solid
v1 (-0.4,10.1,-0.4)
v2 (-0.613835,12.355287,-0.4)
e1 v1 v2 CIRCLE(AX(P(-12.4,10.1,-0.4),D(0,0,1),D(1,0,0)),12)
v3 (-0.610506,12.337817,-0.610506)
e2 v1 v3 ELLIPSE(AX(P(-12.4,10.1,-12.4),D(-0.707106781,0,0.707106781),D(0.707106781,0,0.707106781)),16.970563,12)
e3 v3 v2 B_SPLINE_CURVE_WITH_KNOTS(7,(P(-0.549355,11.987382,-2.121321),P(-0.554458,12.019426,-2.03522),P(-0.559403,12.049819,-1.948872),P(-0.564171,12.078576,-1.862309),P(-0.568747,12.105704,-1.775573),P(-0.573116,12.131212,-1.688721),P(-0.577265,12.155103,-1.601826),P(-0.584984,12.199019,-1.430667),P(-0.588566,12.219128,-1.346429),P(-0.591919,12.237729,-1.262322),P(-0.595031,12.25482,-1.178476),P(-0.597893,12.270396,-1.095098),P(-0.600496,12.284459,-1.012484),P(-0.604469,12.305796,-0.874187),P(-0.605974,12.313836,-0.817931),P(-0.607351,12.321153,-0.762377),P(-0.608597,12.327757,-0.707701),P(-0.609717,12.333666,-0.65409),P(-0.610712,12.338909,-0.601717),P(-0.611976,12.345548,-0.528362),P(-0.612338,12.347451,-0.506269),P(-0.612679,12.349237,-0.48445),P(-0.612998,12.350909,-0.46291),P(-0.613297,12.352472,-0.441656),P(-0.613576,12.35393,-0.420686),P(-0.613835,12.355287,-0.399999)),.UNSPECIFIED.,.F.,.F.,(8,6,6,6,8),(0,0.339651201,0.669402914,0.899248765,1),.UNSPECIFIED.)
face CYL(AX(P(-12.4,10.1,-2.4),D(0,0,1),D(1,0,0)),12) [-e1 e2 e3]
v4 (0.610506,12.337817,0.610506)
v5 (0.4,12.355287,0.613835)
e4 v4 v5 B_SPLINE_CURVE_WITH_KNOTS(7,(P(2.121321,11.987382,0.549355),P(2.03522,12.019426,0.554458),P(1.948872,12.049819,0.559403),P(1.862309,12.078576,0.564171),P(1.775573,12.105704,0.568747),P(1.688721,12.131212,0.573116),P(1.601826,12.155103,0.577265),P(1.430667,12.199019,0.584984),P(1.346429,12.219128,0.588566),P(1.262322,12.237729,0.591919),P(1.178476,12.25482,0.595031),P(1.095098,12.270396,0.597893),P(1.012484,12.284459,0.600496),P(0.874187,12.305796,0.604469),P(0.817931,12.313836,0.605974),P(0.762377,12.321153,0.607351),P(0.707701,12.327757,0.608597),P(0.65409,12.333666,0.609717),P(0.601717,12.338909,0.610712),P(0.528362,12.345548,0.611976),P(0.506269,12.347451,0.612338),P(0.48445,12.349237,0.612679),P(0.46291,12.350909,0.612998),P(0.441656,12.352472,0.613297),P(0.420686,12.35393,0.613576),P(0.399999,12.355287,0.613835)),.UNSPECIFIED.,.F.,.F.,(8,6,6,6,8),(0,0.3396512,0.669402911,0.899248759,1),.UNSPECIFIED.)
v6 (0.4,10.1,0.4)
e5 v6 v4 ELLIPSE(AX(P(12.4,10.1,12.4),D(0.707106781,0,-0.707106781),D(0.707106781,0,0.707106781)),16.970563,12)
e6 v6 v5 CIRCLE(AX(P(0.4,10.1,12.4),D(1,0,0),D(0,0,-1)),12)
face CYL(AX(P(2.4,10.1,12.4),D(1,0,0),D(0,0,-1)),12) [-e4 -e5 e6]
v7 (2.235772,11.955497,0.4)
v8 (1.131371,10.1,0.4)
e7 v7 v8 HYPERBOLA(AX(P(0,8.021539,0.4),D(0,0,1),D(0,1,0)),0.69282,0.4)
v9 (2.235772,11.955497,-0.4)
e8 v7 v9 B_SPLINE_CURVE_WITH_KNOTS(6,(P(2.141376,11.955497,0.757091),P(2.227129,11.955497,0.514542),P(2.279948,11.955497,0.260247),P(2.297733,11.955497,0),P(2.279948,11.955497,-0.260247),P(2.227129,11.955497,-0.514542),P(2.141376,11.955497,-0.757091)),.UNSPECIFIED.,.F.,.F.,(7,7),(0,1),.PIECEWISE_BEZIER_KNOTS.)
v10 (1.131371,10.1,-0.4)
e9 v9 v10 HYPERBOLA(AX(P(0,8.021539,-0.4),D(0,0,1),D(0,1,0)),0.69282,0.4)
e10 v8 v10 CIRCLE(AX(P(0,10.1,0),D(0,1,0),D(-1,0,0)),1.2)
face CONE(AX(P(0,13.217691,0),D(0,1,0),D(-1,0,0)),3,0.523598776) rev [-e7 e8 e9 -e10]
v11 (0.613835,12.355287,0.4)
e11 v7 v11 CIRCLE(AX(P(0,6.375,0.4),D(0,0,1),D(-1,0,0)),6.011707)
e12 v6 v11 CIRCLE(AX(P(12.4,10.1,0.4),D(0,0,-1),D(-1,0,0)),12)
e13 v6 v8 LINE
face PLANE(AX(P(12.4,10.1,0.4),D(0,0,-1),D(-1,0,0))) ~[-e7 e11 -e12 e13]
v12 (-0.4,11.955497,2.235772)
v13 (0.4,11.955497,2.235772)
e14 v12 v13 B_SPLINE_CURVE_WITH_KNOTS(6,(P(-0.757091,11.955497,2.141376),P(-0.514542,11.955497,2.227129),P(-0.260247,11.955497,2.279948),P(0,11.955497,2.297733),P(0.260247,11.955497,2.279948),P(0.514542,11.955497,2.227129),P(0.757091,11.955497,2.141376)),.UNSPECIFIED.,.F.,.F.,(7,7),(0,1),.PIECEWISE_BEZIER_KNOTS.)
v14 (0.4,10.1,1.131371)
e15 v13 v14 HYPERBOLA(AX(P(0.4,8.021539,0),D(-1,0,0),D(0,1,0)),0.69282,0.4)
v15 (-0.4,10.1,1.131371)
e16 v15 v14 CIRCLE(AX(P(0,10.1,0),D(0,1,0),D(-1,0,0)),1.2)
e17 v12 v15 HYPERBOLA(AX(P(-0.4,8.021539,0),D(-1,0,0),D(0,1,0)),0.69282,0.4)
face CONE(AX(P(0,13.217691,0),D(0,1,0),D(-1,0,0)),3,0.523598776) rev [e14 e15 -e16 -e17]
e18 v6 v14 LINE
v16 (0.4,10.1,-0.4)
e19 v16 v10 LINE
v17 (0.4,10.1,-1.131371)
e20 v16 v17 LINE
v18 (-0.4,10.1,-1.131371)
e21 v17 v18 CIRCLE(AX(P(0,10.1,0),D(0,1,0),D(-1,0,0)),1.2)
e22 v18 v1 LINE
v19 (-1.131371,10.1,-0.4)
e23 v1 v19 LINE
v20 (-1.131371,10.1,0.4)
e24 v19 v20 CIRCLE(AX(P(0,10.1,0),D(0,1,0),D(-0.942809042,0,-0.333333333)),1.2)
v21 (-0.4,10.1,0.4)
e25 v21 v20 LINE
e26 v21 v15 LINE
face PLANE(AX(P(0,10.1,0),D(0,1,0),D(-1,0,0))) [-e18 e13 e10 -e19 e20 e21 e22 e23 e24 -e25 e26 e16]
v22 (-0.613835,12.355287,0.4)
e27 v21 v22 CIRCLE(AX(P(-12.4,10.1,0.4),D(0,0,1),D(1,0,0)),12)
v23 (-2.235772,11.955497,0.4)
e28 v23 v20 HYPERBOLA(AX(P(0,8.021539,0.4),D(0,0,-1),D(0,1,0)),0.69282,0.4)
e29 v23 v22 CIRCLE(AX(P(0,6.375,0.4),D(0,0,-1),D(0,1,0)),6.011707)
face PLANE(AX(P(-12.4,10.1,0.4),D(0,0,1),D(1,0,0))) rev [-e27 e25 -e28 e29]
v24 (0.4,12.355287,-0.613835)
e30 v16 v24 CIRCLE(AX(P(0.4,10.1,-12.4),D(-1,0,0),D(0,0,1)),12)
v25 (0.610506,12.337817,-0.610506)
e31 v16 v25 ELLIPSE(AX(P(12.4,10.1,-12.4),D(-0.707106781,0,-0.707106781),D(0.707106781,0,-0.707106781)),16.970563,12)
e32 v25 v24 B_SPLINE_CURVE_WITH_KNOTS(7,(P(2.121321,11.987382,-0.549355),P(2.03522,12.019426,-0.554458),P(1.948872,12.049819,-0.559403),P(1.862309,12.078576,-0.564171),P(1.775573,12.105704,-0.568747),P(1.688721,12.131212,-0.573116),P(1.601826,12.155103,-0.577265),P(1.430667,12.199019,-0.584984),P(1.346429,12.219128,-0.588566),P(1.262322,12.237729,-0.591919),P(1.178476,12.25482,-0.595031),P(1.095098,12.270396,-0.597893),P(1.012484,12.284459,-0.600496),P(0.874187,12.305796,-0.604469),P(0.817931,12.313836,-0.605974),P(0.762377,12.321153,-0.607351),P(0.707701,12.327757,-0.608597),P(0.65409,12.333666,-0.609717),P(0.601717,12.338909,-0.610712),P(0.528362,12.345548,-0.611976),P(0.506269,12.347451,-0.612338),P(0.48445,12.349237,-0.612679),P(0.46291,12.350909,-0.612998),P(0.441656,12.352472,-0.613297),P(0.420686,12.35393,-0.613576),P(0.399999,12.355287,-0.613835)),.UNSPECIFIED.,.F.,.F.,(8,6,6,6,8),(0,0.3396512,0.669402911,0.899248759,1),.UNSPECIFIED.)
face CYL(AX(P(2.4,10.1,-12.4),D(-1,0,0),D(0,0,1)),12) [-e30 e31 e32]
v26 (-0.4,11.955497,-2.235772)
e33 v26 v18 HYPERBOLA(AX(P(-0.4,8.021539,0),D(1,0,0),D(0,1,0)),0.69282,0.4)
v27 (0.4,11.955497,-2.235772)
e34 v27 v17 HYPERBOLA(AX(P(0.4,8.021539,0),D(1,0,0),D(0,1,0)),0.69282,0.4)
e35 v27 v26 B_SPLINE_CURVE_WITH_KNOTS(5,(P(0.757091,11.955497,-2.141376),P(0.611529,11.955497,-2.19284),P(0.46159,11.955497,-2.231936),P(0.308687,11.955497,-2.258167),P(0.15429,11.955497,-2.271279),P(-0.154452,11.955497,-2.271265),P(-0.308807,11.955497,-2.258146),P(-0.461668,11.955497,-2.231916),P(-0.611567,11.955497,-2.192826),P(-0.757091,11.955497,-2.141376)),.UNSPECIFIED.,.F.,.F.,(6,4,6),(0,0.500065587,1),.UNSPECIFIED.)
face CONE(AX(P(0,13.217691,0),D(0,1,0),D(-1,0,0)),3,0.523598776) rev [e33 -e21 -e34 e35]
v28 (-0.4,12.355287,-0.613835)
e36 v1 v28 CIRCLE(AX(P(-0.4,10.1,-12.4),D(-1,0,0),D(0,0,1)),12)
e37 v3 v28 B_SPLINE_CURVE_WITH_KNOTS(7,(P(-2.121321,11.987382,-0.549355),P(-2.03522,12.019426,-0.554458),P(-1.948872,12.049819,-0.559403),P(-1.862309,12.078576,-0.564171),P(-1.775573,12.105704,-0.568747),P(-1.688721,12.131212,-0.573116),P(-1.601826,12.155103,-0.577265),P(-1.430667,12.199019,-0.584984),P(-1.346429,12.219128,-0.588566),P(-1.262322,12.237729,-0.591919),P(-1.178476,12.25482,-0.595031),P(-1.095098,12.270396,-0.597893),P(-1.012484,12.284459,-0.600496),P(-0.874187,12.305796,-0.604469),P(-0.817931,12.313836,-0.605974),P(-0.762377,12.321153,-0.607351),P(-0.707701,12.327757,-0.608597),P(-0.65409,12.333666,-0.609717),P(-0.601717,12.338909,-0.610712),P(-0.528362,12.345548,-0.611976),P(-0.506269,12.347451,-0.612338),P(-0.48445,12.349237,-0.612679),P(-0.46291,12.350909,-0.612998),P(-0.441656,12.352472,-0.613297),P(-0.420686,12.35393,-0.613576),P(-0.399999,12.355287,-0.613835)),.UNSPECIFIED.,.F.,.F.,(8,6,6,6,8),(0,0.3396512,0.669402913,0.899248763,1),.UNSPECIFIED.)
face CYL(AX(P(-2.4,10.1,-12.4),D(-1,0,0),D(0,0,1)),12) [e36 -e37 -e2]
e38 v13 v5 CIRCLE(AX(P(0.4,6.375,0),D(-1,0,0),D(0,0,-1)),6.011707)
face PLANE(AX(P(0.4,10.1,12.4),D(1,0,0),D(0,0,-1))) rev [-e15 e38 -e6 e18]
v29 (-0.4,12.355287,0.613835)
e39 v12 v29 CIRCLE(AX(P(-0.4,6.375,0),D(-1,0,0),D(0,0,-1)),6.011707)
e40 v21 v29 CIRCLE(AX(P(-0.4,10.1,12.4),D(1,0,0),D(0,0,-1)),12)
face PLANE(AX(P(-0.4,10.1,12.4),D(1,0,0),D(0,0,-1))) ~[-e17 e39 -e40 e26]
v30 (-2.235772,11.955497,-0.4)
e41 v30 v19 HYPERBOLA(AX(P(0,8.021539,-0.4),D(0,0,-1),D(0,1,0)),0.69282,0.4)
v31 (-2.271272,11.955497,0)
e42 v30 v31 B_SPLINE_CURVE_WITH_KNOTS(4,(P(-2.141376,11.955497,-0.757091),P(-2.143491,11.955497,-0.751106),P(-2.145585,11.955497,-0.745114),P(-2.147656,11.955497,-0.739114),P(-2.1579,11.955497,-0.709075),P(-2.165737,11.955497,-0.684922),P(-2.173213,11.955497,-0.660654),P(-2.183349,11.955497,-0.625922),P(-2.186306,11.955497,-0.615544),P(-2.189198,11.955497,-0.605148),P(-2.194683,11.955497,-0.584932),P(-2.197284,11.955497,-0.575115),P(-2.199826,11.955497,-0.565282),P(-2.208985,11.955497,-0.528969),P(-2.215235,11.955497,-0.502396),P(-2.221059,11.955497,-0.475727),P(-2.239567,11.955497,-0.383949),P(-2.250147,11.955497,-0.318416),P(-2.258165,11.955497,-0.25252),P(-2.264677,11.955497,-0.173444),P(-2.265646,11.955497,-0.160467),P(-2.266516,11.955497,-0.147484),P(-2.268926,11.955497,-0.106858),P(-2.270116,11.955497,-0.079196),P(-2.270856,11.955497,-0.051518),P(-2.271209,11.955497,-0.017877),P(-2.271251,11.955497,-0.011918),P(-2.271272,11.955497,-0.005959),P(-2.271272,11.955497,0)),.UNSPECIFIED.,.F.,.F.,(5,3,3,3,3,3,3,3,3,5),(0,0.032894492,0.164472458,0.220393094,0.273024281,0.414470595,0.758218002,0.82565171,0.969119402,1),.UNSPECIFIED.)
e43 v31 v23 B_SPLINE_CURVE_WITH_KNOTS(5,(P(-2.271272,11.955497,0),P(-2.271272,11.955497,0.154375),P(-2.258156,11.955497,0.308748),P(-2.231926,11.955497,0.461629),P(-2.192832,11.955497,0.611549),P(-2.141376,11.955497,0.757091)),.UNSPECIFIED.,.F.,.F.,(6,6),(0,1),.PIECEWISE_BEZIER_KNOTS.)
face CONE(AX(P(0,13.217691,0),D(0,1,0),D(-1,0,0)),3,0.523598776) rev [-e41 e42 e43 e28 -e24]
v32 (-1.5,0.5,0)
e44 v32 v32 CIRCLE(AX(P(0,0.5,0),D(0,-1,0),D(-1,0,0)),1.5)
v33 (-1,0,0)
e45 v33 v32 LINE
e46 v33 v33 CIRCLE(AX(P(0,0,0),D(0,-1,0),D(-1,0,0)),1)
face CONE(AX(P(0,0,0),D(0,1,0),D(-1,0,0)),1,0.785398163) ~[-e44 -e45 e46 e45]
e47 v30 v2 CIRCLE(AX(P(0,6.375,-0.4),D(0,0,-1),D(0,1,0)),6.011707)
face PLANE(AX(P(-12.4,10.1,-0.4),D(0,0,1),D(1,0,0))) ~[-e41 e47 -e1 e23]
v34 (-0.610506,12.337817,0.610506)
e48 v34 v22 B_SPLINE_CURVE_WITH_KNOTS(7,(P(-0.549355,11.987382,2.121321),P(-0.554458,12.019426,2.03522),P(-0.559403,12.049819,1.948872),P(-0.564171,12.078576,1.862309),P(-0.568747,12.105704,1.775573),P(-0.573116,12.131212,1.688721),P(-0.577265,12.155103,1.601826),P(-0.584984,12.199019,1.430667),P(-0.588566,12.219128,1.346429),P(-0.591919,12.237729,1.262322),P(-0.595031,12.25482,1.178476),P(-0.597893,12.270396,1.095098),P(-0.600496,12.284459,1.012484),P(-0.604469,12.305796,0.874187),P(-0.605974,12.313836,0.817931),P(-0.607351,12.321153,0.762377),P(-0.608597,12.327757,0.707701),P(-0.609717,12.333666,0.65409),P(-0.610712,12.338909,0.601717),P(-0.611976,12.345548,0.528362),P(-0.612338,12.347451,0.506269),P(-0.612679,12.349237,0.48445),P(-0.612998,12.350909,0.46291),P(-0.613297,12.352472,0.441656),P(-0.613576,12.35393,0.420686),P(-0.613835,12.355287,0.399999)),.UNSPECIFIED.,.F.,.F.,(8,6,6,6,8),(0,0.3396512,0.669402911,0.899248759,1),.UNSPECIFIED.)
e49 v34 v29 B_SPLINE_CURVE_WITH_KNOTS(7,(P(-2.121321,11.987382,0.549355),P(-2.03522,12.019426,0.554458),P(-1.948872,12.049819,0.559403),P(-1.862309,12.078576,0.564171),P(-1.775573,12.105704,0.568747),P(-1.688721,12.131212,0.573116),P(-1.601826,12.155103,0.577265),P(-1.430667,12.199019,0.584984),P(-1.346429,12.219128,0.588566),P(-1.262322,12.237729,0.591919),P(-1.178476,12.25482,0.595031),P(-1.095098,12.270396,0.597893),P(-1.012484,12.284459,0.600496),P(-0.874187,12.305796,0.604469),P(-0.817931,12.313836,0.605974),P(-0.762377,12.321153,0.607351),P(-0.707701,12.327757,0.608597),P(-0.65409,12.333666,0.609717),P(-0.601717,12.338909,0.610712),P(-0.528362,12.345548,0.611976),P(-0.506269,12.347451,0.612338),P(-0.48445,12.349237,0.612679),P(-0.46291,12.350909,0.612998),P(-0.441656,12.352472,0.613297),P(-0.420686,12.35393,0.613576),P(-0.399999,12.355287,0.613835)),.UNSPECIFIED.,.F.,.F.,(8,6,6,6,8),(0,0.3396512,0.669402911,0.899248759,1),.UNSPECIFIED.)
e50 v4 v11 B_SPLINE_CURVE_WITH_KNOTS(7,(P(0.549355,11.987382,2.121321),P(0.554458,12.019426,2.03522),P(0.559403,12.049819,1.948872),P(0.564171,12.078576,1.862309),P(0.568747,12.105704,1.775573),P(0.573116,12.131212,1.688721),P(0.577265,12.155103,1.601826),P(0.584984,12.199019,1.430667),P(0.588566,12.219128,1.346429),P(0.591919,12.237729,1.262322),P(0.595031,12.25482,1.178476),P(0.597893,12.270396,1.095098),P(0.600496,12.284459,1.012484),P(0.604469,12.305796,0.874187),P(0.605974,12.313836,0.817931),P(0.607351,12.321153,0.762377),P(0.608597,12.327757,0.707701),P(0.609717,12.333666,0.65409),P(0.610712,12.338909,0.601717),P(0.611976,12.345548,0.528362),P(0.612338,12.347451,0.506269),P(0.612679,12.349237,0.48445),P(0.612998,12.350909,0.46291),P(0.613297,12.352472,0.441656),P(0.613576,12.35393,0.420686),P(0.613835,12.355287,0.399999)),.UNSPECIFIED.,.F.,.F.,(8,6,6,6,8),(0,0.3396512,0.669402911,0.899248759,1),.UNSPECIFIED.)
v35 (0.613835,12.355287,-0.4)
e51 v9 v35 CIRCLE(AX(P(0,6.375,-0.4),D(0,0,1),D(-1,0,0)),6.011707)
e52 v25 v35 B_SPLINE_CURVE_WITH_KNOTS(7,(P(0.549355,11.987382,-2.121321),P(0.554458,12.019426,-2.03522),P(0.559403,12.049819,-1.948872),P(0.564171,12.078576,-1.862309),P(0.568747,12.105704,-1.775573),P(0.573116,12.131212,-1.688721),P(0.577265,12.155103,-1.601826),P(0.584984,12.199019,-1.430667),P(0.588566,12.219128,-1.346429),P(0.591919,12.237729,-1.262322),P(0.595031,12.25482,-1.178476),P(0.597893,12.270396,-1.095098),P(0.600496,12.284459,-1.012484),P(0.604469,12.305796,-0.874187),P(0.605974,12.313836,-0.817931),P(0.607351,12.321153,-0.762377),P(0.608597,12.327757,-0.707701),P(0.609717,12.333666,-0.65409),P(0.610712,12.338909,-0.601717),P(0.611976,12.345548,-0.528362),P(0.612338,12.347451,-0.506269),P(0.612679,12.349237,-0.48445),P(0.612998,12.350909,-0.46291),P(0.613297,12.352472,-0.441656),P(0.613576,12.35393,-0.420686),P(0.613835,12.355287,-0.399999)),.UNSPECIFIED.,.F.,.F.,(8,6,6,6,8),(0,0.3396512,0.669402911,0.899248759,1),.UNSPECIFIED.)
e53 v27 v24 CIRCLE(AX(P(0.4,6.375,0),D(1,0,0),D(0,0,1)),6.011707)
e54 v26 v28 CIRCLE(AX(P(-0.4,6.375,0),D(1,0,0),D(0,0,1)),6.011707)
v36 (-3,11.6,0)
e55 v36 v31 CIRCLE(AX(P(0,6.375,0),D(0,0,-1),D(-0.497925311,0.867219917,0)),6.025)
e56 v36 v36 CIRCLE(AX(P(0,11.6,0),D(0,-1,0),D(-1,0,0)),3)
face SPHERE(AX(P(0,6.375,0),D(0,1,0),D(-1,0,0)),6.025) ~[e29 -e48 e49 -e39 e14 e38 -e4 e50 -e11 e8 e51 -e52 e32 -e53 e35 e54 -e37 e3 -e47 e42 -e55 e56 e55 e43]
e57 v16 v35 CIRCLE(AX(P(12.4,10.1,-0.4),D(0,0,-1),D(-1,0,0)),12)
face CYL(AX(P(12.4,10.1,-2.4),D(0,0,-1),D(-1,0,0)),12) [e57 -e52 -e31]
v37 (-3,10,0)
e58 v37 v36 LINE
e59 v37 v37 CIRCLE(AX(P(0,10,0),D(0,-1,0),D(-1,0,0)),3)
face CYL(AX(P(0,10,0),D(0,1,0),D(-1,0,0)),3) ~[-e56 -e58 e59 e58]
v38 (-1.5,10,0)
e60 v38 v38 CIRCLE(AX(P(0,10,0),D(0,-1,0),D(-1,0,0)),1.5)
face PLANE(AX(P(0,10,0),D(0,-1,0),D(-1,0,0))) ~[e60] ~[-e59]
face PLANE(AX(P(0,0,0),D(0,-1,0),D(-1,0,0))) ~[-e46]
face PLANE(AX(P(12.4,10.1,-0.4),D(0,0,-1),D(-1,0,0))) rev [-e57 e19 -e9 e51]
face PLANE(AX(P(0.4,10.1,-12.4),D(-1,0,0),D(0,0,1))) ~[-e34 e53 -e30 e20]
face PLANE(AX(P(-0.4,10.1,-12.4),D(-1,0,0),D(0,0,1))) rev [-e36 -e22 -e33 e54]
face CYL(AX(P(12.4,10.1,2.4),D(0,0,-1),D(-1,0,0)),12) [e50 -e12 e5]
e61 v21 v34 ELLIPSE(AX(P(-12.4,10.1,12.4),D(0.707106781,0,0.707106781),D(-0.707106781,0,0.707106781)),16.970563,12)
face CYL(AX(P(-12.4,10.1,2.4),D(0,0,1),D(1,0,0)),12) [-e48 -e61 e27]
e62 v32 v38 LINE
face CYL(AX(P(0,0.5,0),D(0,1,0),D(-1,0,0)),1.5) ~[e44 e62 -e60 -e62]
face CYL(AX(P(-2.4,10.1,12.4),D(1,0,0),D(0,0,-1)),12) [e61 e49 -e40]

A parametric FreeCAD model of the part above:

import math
import FreeCAD as App
import Part
import Sketcher

V = App.Vector
Q = App.Units.Quantity


def add_polygon(sketch, points):
    """Adds a closed chain of lines whose ends are joined by coincident constraints."""
    first, n = sketch.GeometryCount, len(points)
    for a, b in zip(points, points[1:] + points[:1]):
        sketch.addGeometry(Part.LineSegment(App.Vector(*a, 0), App.Vector(*b, 0)), False)
    for i in range(n):
        sketch.addConstraint(Sketcher.Constraint("Coincident", first + i, 2, first + (i + 1) % n, 1))

doc = App.newDocument("Part")
body = doc.addObject("PartDesign::Body", "Body")

# Sketch on XY plane
sketch1 = body.newObject("Sketcher::SketchObject", "Sketch")
sketch1.AttachmentSupport = (doc.getObject("XY_Plane"), [""])
sketch1.MapMode = "FlatFace"
sketch1.addGeometry([
    Part.LineSegment(V(-1, 0, 0), V(0, 0, 0)),  # 0
    Part.LineSegment(V(0, 0, 0), V(0, 12.4, 0)),  # 1
    Part.ArcOfCircle(Part.Circle(V(0, 6.375, 0), V(0, 0, 1), 6.025), math.radians(90), math.radians(119.862834)),  # 2
    Part.LineSegment(V(-3, 11.6, 0), V(-3, 10, 0)),  # 3
    Part.LineSegment(V(-3, 10, 0), V(-1.5, 10, 0)),  # 4
    Part.LineSegment(V(-1.5, 10, 0), V(-1.5, 0.5, 0)),  # 5
    Part.LineSegment(V(-1.5, 0.5, 0), V(-1, 0, 0)),  # 6
], False)
sketch1.addConstraint([
    Sketcher.Constraint("Coincident", 0, 2, 1, 1),
    Sketcher.Constraint("Coincident", 1, 2, 2, 1),
    Sketcher.Constraint("Coincident", 2, 2, 3, 1),
    Sketcher.Constraint("Coincident", 3, 2, 4, 1),
    Sketcher.Constraint("Coincident", 4, 2, 5, 1),
    Sketcher.Constraint("Coincident", 5, 2, 6, 1),
    Sketcher.Constraint("Coincident", 6, 2, 0, 1),
    Sketcher.Constraint("Horizontal", 0),
    Sketcher.Constraint("Vertical", 1),
    Sketcher.Constraint("Vertical", 3),
    Sketcher.Constraint("Horizontal", 4),
    Sketcher.Constraint("Vertical", 5),
    Sketcher.Constraint("Coincident", 0, 2, -1, 1),
    Sketcher.Constraint("PointOnObject", 2, 3, -2),
    Sketcher.Constraint("DistanceX", 0, 1, 0, 2, 1.0),
    Sketcher.Constraint("Angle", 6, Q("-45 deg")),
    Sketcher.Constraint("DistanceX", 4, 1, 4, 2, 1.5),
    Sketcher.Constraint("DistanceY", 1, 1, 1, 2, 12.4),
    Sketcher.Constraint("DistanceY", 3, 2, 3, 1, 1.6),
    Sketcher.Constraint("DistanceY", 5, 2, 5, 1, 9.5),
    Sketcher.Constraint("DistanceX", 2, 2, -1, 1, 3.0),
])
revolution = body.newObject("PartDesign::Revolution", "Revolution")
revolution.Profile = sketch1
revolution.ReferenceAxis = (sketch1, ["V_Axis"])
revolution.Angle = 360
body2 = doc.addObject("PartDesign::Body", "Body001")

# Sketch on XY plane
sketch2 = body2.newObject("Sketcher::SketchObject", "Sketch001")
sketch2.AttachmentSupport = (doc.getObject("XY_Plane001"), [""])
sketch2.MapMode = "FlatFace"
add_polygon(sketch2, [(0, 20.1), (-3, 20.1), (-3, 13.217691), (-1.2, 10.1), (0, 10.1)])  # lines 0-4
sketch2.addConstraint([
    Sketcher.Constraint("Horizontal", 0),
    Sketcher.Constraint("Vertical", 1),
    Sketcher.Constraint("Horizontal", 3),
    Sketcher.Constraint("Vertical", 4),
    Sketcher.Constraint("PointOnObject", 3, 2, -2),
    Sketcher.Constraint("DistanceX", 0, 2, 0, 1, 3.0),
    Sketcher.Constraint("DistanceY", 4, 1, 4, 2, 10.0),
    Sketcher.Constraint("Angle", 2, Q("-60 deg")),
    Sketcher.Constraint("DistanceX", 3, 1, 3, 2, 1.2),
    Sketcher.Constraint("DistanceY", -1, 1, 0, 2, 20.1),
])
revolution2 = body2.newObject("PartDesign::Revolution", "Revolution001")
revolution2.Profile = sketch2
revolution2.ReferenceAxis = (sketch2, ["V_Axis"])
revolution2.Angle = 360

# Sketch on XZ plane
sketch3 = body2.newObject("Sketcher::SketchObject", "Sketch002")
sketch3.AttachmentSupport = (doc.getObject("XZ_Plane001"), [""])
sketch3.MapMode = "FlatFace"
sketch3.AttachmentOffset = App.Placement(V(0, 0, -10.1), App.Rotation())
add_polygon(sketch3, [(-12.4, -0.4), (-12.4, -4.4), (-0.4, -4.4), (-0.4, -0.4)])  # lines 0-3
add_polygon(sketch3, [(-12.4, 4.4), (-12.4, 0.4), (-0.4, 0.4), (-0.4, 4.4)])  # lines 4-7
sketch3.addGeometry(Part.LineSegment(V(-12.4, -4.4, 0), V(-12.4, 4.4, 0)), True)  # axis
sketch3.addConstraint([
    Sketcher.Constraint("Vertical", 0),
    Sketcher.Constraint("Horizontal", 1),
    Sketcher.Constraint("Vertical", 2),
    Sketcher.Constraint("Horizontal", 3),
    Sketcher.Constraint("Vertical", 4),
    Sketcher.Constraint("Horizontal", 5),
    Sketcher.Constraint("Vertical", 6),
    Sketcher.Constraint("Horizontal", 7),
    Sketcher.Constraint("Vertical", 8),
    Sketcher.Constraint("Coincident", 8, 1, 0, 2),
    Sketcher.Constraint("Coincident", 8, 2, 7, 2),
    Sketcher.Constraint("Symmetric", 2, 2, 5, 2, -1),
    Sketcher.Constraint("Equal", 2, 4),
    Sketcher.Constraint("DistanceX", 1, 1, 1, 2, 12.0),
    Sketcher.Constraint("DistanceY", 0, 2, 0, 1, 4.0),
    Sketcher.Constraint("DistanceY", 8, 1, 8, 2, 8.8),
    Sketcher.Constraint("DistanceX", 0, 2, -1, 1, 12.4),
])
groove = body2.newObject("PartDesign::Groove", "Groove")
groove.Profile = sketch3
groove.ReferenceAxis = (sketch3, ["Axis0"])
groove.Angle = 360
doc.recompute()

polarpattern = body2.newObject("PartDesign::PolarPattern", "PolarPattern")
polarpattern.Originals = [groove]
polarpattern.Axis = (doc.getObject("Y_Axis001"), [""])
polarpattern.Angle = 360
polarpattern.Occurrences = 4
body2.Tip = polarpattern
doc.recompute()

boolean = body.newObject("PartDesign::Boolean", "Boolean")
boolean.Type = "Cut"
boolean.addObjects([body2])

doc.recompute()
